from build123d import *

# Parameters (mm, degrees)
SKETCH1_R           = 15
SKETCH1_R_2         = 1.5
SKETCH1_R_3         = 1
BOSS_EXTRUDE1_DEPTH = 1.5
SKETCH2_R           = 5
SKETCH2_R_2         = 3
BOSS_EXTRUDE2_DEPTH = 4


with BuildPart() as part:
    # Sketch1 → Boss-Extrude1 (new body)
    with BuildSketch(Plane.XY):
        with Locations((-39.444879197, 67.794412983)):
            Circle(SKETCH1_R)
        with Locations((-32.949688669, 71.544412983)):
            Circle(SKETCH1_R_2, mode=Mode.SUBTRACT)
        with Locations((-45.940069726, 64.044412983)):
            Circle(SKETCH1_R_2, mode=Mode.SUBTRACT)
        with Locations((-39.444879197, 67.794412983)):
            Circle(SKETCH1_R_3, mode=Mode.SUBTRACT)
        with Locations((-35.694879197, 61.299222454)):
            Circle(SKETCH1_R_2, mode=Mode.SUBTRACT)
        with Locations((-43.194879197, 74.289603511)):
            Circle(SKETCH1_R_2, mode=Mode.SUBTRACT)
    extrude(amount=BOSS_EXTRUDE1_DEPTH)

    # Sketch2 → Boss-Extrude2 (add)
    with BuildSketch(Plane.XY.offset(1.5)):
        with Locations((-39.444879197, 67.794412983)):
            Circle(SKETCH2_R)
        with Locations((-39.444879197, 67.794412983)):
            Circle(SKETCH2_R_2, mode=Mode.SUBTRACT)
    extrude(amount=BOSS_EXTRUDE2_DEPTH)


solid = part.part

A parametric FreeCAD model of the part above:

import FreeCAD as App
import Part
import Sketcher
from FreeCAD import Vector

doc = App.newDocument("Part")
body = doc.addObject("PartDesign::Body", "Body")

# Sketch on XY plane
sketch1 = body.newObject("Sketcher::SketchObject", "Sketch")
sketch1.AttachmentSupport = (doc.getObject("XY_Plane"), [""])
sketch1.MapMode = "FlatFace"
sketch1.addGeometry(Part.Circle(Vector(-39.444879, 67.794413, 0), Vector(0, 0, 1), 15), False)
sketch1.addGeometry(Part.Circle(Vector(-45.94007, 64.044413, 0), Vector(0, 0, 1), 1.5), False)
sketch1.addGeometry(Part.Circle(Vector(-35.694879, 61.299222, 0), Vector(0, 0, 1), 1.5), False)
sketch1.addGeometry(Part.Circle(Vector(-43.194879, 74.289604, 0), Vector(0, 0, 1), 1.5), False)
sketch1.addGeometry(Part.Circle(Vector(-39.444879, 67.794413, 0), Vector(0, 0, 1), 1), False)
sketch1.addGeometry(Part.Circle(Vector(-32.949689, 71.544413, 0), Vector(0, 0, 1), 1.5), False)
sketch1.addConstraint(Sketcher.Constraint("Coincident", 4, 3, 0, 3))
sketch1.addConstraint(Sketcher.Constraint("Equal", 1, 2))
sketch1.addConstraint(Sketcher.Constraint("Equal", 2, 3))
sketch1.addConstraint(Sketcher.Constraint("Equal", 3, 5))
sketch1.addConstraint(Sketcher.Constraint("Diameter", 0, 30.0))
sketch1.addConstraint(Sketcher.Constraint("Diameter", 1, 3.0))
sketch1.addConstraint(Sketcher.Constraint("Diameter", 4, 2.0))
sketch1.addConstraint(Sketcher.Constraint("DistanceX", 3, 3, 2, 3, 7.5))
sketch1.addConstraint(Sketcher.Constraint("DistanceY", 1, 3, 5, 3, 7.5))
sketch1.addConstraint(Sketcher.Constraint("DistanceY", 1, 3, 0, 3, 3.75))
sketch1.addConstraint(Sketcher.Constraint("DistanceX", 0, 3, 2, 3, 3.75))
sketch1.addConstraint(Sketcher.Constraint("DistanceX", 0, 3, -1, 1, 39.444879))
sketch1.addConstraint(Sketcher.Constraint("DistanceX", 1, 3, -1, 1, 45.94007))
sketch1.addConstraint(Sketcher.Constraint("DistanceX", 5, 3, -1, 1, 32.949689))
sketch1.addConstraint(Sketcher.Constraint("DistanceY", 2, 3, 0, 3, 6.495191))
sketch1.addConstraint(Sketcher.Constraint("DistanceY", 0, 3, 3, 3, 6.495191))
sketch1.addConstraint(Sketcher.Constraint("DistanceY", -1, 1, 0, 3, 67.794413))
pad1 = body.newObject("PartDesign::Pad", "Pad")
pad1.Profile = sketch1
pad1.Length = 1.5

# Sketch on XY plane
sketch2 = body.newObject("Sketcher::SketchObject", "Sketch001")
sketch2.AttachmentSupport = (doc.getObject("XY_Plane"), [""])
sketch2.MapMode = "FlatFace"
sketch2.AttachmentOffset = App.Placement(Vector(0, 0, 1.5), App.Rotation())
sketch2.addGeometry(Part.Circle(Vector(-39.444879, 67.794413, 0), Vector(0, 0, 1), 5), False)
sketch2.addGeometry(Part.Circle(Vector(-39.444879, 67.794413, 0), Vector(0, 0, 1), 3), False)
sketch2.addConstraint(Sketcher.Constraint("Coincident", 1, 3, 0, 3))
sketch2.addConstraint(Sketcher.Constraint("Diameter", 0, 10.0))
sketch2.addConstraint(Sketcher.Constraint("Diameter", 1, 6.0))
sketch2.addConstraint(Sketcher.Constraint("DistanceX", 0, 3, -1, 1, 39.444879))
sketch2.addConstraint(Sketcher.Constraint("DistanceY", -1, 1, 0, 3, 67.794413))
pad2 = body.newObject("PartDesign::Pad", "Pad001")
pad2.Profile = sketch2
pad2.Length = 4

doc.recompute()
